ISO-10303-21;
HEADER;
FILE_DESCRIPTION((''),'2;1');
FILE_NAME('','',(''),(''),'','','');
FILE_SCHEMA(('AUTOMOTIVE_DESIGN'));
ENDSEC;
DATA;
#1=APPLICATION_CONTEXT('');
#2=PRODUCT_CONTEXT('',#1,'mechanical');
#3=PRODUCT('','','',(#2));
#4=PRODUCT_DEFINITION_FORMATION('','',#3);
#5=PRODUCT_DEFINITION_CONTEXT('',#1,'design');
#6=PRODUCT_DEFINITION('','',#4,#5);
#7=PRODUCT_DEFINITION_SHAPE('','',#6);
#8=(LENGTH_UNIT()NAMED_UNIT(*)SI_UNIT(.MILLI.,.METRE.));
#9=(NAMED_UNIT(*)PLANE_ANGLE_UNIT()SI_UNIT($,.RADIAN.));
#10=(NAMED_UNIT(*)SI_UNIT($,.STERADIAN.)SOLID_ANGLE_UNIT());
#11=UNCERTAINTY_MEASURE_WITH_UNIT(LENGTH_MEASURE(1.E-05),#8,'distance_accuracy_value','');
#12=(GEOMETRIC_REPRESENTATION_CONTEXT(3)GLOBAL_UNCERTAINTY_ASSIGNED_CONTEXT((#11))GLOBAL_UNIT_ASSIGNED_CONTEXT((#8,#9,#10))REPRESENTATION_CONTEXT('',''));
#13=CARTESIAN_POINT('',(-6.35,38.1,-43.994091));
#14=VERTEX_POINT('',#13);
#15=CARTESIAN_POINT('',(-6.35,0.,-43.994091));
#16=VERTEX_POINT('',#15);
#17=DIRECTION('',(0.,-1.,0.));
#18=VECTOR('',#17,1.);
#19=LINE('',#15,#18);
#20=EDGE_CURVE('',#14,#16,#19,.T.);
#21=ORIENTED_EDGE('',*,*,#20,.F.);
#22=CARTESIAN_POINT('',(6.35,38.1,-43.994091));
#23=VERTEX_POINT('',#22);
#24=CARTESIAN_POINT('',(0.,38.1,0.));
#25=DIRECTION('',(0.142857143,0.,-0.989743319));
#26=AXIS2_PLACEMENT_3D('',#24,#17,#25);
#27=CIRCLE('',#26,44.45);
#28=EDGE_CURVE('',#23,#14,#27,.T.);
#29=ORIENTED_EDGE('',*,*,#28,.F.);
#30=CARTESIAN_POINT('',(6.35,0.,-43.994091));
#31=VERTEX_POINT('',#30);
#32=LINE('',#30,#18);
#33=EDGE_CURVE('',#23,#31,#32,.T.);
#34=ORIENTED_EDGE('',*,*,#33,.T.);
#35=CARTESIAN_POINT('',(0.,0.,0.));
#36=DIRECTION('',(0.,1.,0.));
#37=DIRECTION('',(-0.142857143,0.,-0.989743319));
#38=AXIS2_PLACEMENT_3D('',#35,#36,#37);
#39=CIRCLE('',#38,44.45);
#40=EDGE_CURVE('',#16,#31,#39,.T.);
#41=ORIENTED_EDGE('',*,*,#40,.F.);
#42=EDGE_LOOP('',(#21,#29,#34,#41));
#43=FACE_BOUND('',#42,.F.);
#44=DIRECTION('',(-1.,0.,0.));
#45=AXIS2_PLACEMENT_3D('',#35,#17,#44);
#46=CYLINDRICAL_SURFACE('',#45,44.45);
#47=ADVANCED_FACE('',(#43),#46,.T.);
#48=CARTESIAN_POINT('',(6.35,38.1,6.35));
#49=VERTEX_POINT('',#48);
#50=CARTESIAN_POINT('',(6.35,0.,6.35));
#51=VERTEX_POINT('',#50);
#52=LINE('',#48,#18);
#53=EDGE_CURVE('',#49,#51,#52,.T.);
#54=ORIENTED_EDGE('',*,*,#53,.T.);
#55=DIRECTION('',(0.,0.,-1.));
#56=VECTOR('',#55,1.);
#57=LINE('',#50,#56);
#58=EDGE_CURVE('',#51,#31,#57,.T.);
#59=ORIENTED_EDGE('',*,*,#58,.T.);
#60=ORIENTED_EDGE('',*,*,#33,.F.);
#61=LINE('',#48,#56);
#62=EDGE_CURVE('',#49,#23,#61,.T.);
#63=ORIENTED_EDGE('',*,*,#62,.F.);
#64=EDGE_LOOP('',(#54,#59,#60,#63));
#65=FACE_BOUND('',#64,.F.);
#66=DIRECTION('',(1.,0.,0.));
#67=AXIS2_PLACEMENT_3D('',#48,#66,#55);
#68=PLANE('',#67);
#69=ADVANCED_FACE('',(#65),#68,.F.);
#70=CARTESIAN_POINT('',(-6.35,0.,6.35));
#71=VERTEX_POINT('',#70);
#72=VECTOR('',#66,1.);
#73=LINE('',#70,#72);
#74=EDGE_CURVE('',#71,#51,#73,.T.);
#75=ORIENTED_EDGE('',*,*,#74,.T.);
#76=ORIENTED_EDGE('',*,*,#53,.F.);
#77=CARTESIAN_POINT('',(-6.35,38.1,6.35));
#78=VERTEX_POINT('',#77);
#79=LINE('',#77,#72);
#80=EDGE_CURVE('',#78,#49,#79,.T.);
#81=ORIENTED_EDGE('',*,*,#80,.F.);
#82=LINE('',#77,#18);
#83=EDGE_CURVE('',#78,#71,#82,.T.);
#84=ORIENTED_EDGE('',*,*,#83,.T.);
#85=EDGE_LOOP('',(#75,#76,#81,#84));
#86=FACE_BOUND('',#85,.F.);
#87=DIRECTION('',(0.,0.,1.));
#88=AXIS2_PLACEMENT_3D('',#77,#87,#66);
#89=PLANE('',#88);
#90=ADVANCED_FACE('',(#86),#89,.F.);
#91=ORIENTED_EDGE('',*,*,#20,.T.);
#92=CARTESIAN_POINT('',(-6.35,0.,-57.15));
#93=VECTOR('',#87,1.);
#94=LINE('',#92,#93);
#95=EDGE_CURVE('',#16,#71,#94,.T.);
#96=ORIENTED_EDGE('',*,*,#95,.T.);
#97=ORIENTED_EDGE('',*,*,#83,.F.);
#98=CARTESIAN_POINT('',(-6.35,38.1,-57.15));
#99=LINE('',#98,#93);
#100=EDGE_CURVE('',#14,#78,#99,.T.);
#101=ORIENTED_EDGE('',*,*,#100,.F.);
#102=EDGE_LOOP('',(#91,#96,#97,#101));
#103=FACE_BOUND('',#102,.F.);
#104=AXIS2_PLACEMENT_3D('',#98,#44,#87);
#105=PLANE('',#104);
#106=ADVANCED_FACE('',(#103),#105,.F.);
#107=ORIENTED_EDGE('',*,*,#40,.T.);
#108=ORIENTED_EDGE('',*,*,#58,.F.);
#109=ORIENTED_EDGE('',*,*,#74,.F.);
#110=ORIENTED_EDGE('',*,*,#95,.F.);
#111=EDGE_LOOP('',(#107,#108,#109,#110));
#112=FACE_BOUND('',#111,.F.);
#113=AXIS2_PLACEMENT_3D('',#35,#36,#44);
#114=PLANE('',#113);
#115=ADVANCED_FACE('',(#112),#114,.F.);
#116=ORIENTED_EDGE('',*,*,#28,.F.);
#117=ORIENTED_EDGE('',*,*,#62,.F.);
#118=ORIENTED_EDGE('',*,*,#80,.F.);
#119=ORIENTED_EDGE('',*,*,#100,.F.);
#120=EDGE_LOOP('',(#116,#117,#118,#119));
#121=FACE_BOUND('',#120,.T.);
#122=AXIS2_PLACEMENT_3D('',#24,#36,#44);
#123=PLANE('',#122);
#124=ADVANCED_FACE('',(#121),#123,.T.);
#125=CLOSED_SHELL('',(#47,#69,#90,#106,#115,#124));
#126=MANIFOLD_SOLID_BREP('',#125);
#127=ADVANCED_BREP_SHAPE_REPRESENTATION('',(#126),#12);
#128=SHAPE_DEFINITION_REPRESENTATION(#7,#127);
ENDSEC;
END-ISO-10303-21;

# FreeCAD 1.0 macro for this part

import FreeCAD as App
import Part
import Sketcher
Q = App.Units.Quantity


def add_polygon(sketch, points):
    """Adds a closed chain of lines whose ends are joined by coincident constraints."""
    first, n = sketch.GeometryCount, len(points)
    for a, b in zip(points, points[1:] + points[:1]):
        sketch.addGeometry(Part.LineSegment(App.Vector(*a, 0), App.Vector(*b, 0)), False)
    for i in range(n):
        sketch.addConstraint(Sketcher.Constraint("Coincident", first + i, 2, first + (i + 1) % n, 1))

doc = App.newDocument("Part")
body = doc.addObject("PartDesign::Body", "Body")

sketch1 = body.newObject("Sketcher::SketchObject", "Sketch")
sketch1.AttachmentSupport = (doc.getObject("XZ_Plane"), [""])
sketch1.MapMode = "FlatFace"
sketch1.addGeometry(Part.Circle(App.Vector(0, 0, 0), App.Vector(0, 0, 1), 44), False)
sketch1.addConstraint(Sketcher.Constraint("Coincident", 0, 3, -1, 1))
sketch1.addConstraint(Sketcher.Constraint("Diameter", 0, Q("3.5 in")))
pad1 = body.newObject("PartDesign::Pad", "Pad")
pad1.Profile = sketch1
pad1.Length = Q("1.5 in")
pad1.Reversed = True

sketch2 = body.newObject("Sketcher::SketchObject", "Sketch001")
sketch2.AttachmentSupport = (doc.getObject("XZ_Plane"), [""])
sketch2.MapMode = "FlatFace"
sketch2.AttachmentOffset = App.Placement(App.Vector(0, 0, -1.5 * 25.4), App.Rotation())
add_polygon(sketch2, [(-6, -57), (-6, 6), (6, 6), (6, -57)])
sketch2.addConstraint(Sketcher.Constraint("Vertical", 0))
sketch2.addConstraint(Sketcher.Constraint("Horizontal", 1))
sketch2.addConstraint(Sketcher.Constraint("Vertical", 2))
sketch2.addConstraint(Sketcher.Constraint("Horizontal", 3))
sketch2.addConstraint(Sketcher.Constraint("DistanceX", 1, 1, 1, 2, Q("0.5 in")))
sketch2.addConstraint(Sketcher.Constraint("DistanceY", 0, 1, 0, 2, Q("2.5 in")))
sketch2.addConstraint(Sketcher.Constraint("DistanceX", 0, 2, -1, 1, Q("0.25 in")))
sketch2.addConstraint(Sketcher.Constraint("DistanceY", -1, 1, 0, 2, Q("0.25 in")))
pocket1 = body.newObject("PartDesign::Pocket", "Pocket")
pocket1.Profile = sketch2
pocket1.Length = Q("1.5 in")
pocket1.Reversed = True

doc.recompute()
